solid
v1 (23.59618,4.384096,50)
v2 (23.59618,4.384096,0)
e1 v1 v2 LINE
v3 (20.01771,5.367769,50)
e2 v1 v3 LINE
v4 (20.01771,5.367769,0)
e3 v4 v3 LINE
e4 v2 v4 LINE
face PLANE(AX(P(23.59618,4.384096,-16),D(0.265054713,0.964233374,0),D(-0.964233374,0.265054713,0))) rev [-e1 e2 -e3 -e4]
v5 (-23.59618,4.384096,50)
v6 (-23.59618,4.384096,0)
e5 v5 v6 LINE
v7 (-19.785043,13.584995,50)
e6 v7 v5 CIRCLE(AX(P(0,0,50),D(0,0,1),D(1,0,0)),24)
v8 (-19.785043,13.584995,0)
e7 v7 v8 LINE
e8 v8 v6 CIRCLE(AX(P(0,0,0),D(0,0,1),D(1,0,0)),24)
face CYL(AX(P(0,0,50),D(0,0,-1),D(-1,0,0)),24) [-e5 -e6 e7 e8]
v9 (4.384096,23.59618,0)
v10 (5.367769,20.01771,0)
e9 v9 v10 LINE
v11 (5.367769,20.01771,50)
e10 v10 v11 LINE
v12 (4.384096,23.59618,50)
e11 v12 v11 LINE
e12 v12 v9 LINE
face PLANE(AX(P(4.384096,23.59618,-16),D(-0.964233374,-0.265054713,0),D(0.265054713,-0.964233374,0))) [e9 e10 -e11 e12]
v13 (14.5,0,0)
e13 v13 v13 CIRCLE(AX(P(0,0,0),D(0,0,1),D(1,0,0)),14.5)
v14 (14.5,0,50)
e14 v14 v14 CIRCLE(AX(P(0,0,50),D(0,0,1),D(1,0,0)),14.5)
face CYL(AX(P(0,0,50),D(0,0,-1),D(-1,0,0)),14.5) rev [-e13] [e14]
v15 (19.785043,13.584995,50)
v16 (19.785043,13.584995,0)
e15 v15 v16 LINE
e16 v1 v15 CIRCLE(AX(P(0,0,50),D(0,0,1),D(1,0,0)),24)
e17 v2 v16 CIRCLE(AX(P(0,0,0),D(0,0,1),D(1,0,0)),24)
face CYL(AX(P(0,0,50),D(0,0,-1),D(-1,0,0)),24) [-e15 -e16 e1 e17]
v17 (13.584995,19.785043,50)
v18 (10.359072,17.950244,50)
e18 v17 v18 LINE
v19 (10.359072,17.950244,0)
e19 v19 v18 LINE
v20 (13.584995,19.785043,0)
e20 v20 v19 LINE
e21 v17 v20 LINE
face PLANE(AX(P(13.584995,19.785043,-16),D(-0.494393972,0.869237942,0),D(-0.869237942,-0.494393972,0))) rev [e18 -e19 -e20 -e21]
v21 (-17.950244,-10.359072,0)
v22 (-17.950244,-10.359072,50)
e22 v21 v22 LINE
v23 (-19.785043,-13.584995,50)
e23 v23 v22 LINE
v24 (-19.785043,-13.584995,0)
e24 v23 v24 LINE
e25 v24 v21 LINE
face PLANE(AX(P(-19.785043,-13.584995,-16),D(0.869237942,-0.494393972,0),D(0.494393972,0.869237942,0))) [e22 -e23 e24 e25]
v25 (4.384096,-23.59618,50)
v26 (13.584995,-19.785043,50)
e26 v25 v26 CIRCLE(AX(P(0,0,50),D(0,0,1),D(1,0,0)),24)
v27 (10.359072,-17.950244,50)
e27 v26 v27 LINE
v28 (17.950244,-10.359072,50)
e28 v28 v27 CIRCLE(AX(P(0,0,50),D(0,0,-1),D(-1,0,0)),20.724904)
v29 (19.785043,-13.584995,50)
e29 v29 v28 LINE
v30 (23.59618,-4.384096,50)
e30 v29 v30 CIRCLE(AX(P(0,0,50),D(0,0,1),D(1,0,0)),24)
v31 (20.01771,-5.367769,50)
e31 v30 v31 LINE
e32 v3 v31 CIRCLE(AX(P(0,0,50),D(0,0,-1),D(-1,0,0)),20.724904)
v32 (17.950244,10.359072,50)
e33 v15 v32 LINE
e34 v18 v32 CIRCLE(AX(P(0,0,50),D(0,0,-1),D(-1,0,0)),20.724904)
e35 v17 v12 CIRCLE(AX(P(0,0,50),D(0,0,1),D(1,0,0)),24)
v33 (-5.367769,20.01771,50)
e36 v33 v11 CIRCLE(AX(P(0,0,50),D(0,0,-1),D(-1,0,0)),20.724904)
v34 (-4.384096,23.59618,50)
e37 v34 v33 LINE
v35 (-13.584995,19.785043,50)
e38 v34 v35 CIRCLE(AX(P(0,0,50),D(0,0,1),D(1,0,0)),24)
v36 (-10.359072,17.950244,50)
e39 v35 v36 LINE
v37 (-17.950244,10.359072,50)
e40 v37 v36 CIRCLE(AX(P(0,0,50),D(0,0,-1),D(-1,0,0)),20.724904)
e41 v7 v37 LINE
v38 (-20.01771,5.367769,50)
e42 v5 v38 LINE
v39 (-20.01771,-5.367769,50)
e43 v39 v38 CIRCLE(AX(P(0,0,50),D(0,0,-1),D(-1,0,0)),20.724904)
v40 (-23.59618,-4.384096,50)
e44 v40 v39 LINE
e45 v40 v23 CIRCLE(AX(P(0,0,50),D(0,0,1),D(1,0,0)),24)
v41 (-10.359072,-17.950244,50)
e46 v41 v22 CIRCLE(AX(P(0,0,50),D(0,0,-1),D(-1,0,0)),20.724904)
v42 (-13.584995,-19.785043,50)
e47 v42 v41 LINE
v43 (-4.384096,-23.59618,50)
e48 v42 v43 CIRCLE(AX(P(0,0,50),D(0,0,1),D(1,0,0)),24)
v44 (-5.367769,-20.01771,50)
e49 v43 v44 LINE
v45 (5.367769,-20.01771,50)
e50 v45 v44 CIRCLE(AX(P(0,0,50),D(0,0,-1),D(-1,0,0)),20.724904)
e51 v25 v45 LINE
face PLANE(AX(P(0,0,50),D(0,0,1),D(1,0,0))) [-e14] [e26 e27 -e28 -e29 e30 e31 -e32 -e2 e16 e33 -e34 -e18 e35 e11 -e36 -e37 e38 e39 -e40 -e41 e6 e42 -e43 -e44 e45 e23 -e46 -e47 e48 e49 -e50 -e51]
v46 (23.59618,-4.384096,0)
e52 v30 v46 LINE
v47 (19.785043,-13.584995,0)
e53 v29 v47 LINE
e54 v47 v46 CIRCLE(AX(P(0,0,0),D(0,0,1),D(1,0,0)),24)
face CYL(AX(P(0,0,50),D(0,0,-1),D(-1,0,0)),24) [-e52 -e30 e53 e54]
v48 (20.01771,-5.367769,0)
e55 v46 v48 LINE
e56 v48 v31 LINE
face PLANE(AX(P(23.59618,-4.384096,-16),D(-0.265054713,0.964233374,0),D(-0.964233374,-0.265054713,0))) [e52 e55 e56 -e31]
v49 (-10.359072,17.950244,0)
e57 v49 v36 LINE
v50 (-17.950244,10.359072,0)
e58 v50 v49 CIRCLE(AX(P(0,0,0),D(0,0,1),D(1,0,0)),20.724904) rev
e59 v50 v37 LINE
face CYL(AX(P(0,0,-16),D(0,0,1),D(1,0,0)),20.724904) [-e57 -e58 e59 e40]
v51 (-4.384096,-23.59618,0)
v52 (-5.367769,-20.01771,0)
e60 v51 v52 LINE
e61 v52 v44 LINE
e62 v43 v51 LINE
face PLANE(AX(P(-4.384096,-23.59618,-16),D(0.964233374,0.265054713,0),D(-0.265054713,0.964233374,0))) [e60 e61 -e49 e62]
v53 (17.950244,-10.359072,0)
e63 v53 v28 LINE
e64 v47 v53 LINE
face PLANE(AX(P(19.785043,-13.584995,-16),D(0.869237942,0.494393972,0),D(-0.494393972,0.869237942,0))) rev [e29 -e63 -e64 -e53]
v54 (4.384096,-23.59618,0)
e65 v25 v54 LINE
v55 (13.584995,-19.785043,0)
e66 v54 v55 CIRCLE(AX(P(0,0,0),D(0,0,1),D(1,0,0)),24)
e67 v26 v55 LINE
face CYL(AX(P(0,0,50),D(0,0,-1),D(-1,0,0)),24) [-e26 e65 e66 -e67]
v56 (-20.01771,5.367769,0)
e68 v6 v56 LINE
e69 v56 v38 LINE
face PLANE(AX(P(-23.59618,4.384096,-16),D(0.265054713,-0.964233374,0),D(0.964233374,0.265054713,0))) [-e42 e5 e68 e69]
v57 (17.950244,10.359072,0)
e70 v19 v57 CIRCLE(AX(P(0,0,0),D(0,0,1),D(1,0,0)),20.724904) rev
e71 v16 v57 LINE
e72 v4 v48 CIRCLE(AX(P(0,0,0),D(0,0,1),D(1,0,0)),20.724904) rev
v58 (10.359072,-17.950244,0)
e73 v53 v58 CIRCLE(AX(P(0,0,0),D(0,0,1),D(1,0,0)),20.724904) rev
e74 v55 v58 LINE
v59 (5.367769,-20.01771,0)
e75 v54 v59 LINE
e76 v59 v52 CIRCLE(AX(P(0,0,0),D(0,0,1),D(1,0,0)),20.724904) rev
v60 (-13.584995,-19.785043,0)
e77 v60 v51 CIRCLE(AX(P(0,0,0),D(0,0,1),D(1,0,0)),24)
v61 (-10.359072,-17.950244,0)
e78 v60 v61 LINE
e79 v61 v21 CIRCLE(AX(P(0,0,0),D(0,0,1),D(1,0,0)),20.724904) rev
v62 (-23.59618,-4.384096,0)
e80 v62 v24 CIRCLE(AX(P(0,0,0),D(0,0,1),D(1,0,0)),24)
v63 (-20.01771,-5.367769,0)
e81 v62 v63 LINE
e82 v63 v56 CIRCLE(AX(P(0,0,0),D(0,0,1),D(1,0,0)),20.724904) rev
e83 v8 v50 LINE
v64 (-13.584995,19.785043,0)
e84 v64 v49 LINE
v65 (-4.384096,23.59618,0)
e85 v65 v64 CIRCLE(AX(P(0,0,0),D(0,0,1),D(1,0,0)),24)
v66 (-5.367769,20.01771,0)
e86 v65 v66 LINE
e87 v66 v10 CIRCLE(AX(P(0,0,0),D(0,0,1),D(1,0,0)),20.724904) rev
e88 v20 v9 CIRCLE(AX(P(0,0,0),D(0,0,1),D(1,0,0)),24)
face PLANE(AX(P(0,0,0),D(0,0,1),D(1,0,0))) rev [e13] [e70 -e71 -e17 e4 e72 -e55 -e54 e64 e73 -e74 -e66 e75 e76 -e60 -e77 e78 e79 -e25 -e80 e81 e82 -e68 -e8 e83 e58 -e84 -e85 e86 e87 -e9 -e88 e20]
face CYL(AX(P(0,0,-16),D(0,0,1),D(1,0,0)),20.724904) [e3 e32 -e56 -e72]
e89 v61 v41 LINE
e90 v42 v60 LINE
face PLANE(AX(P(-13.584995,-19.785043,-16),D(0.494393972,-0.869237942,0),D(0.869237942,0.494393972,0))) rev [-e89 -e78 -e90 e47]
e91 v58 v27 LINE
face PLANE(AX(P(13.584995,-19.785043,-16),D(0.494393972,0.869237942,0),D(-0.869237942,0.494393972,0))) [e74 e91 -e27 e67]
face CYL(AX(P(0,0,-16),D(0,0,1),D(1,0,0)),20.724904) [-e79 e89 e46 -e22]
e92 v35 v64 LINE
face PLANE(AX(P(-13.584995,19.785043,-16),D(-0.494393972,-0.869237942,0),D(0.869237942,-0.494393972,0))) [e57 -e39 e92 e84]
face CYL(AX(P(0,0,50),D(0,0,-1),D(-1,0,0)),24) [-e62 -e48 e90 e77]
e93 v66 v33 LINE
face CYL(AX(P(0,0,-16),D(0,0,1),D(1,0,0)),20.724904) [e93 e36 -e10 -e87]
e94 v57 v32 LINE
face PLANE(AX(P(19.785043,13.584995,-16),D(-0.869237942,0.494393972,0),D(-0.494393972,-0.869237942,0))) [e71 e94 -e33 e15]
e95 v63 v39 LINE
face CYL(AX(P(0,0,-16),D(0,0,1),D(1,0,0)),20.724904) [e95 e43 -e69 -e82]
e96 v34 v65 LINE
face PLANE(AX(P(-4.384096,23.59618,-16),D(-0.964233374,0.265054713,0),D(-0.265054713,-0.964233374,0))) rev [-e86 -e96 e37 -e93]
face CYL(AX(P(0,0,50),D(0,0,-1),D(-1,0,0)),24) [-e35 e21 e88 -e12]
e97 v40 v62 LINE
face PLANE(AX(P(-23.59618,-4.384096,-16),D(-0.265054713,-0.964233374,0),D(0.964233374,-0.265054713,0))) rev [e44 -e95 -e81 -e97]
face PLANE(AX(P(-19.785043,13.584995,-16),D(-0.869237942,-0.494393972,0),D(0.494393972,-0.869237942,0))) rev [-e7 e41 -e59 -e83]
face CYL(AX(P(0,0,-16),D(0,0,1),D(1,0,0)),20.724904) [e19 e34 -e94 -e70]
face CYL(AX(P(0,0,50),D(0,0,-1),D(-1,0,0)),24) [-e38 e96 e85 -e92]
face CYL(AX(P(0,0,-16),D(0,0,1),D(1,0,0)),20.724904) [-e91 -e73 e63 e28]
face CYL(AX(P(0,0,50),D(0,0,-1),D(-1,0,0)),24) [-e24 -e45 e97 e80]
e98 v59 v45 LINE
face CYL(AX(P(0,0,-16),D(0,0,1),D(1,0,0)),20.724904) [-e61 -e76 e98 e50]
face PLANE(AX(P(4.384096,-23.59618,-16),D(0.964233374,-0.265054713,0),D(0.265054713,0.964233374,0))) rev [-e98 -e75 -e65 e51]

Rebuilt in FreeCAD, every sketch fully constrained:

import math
import FreeCAD as App
import Part
import Sketcher
from FreeCAD import Vector
Q = App.Units.Quantity

doc = App.newDocument("Part")
body = doc.addObject("PartDesign::Body", "Body")

# Sketch on XY plane
sketch1 = body.newObject("Sketcher::SketchObject", "Sketch")
sketch1.AttachmentSupport = (doc.getObject("XY_Plane"), [""])
sketch1.MapMode = "FlatFace"
sketch1.addGeometry([
    Part.Circle(Vector(0, 0, 0), Vector(0, 0, 1), 24),
    Part.Circle(Vector(0, 0, 0), Vector(0, 0, 1), 14),
], False)
sketch1.addConstraint([
    Sketcher.Constraint("Coincident", 0, 3, -1, 1),
    Sketcher.Constraint("Coincident", 1, 3, -1, 1),
    Sketcher.Constraint("Diameter", 0, Q("48 mm")),
    Sketcher.Constraint("Diameter", 1, Q("29 mm")),
])
pad1 = body.newObject("PartDesign::Pad", "Pad")
pad1.Profile = sketch1
pad1.Length = 50

# Sketch on XY plane
sketch2 = body.newObject("Sketcher::SketchObject", "Sketch001")
sketch2.AttachmentSupport = (doc.getObject("XY_Plane"), [""])
sketch2.MapMode = "FlatFace"
sketch2.addGeometry([
    Part.LineSegment(Vector(-4.4, 23.6, 0), Vector(-5.4, 20, 0)),  # 0
    Part.ArcOfCircle(Part.Circle(Vector(0, 0, 0), Vector(0, 0, 1), 20.7), math.radians(75), math.radians(105)),  # 1
    Part.LineSegment(Vector(5.4, 20, 0), Vector(4.4, 23.6, 0)),  # 2
    Part.ArcOfCircle(Part.Circle(Vector(0, 0, 0), Vector(0, 0, 1), 24), math.radians(79), math.radians(101)),  # 3
    Part.LineSegment(Vector(18, 10.4, 0), Vector(19.8, 13.6, 0)),  # 4
    Part.ArcOfCircle(Part.Circle(Vector(0, 0, 0), Vector(0, 0, 1), 24), math.radians(34), math.radians(56)),  # 5
    Part.LineSegment(Vector(13.6, 19.8, 0), Vector(10.4, 18, 0)),  # 6
    Part.ArcOfCircle(Part.Circle(Vector(0, 0, 0), Vector(0, 0, 1), 20.7), math.radians(30), math.radians(60)),  # 7
    Part.LineSegment(Vector(20, -5.4, 0), Vector(23.6, -4.4, 0)),  # 8
    Part.ArcOfCircle(Part.Circle(Vector(0, 0, 0), Vector(0, 0, 1), 24), math.radians(-11), math.radians(11)),  # 9
    Part.LineSegment(Vector(23.6, 4.4, 0), Vector(20, 5.4, 0)),  # 10
    Part.ArcOfCircle(Part.Circle(Vector(0, 0, 0), Vector(0, 0, 1), 20.7), math.radians(-15), math.radians(15)),  # 11
    Part.LineSegment(Vector(10.4, -18, 0), Vector(13.6, -19.8, 0)),  # 12
    Part.ArcOfCircle(Part.Circle(Vector(0, 0, 0), Vector(0, 0, 1), 24), math.radians(-56), math.radians(-34)),  # 13
    Part.LineSegment(Vector(19.8, -13.6, 0), Vector(18, -10.4, 0)),  # 14
    Part.ArcOfCircle(Part.Circle(Vector(0, 0, 0), Vector(0, 0, 1), 20.7), math.radians(-60), math.radians(-30)),  # 15
    Part.LineSegment(Vector(-5.4, -20, 0), Vector(-4.4, -23.6, 0)),  # 16
    Part.ArcOfCircle(Part.Circle(Vector(0, 0, 0), Vector(0, 0, 1), 24), math.radians(-101), math.radians(-79)),  # 17
    Part.LineSegment(Vector(4.4, -23.6, 0), Vector(5.4, -20, 0)),  # 18
    Part.ArcOfCircle(Part.Circle(Vector(0, 0, 0), Vector(0, 0, 1), 20.7), math.radians(-105), math.radians(-75)),  # 19
    Part.LineSegment(Vector(-18, -10.4, 0), Vector(-19.8, -13.6, 0)),  # 20
    Part.ArcOfCircle(Part.Circle(Vector(0, 0, 0), Vector(0, 0, 1), 24), math.radians(-146), math.radians(-124)),  # 21
    Part.LineSegment(Vector(-13.6, -19.8, 0), Vector(-10.4, -18, 0)),  # 22
    Part.ArcOfCircle(Part.Circle(Vector(0, 0, 0), Vector(0, 0, 1), 20.7), math.radians(-150), math.radians(-120)),  # 23
    Part.LineSegment(Vector(-20, 5.4, 0), Vector(-23.6, 4.4, 0)),  # 24
    Part.ArcOfCircle(Part.Circle(Vector(0, 0, 0), Vector(0, 0, 1), 24), math.radians(169), math.radians(191)),  # 25
    Part.LineSegment(Vector(-23.6, -4.4, 0), Vector(-20, -5.4, 0)),  # 26
    Part.ArcOfCircle(Part.Circle(Vector(0, 0, 0), Vector(0, 0, 1), 20.7), math.radians(165), math.radians(195)),  # 27
    Part.LineSegment(Vector(-10.4, 18, 0), Vector(-13.6, 19.8, 0)),  # 28
    Part.ArcOfCircle(Part.Circle(Vector(0, 0, 0), Vector(0, 0, 1), 24), math.radians(124), math.radians(146)),  # 29
    Part.LineSegment(Vector(-19.8, 13.6, 0), Vector(-18, 10.4, 0)),  # 30
    Part.ArcOfCircle(Part.Circle(Vector(0, 0, 0), Vector(0, 0, 1), 20.7), math.radians(120), math.radians(150)),  # 31
], False)
sketch2.addConstraint([
    Sketcher.Constraint("Coincident", 0, 2, 1, 2),
    Sketcher.Constraint("Coincident", 1, 1, 2, 1),
    Sketcher.Constraint("Coincident", 2, 2, 3, 1),
    Sketcher.Constraint("Coincident", 3, 2, 0, 1),
    Sketcher.Constraint("Coincident", 4, 2, 5, 1),
    Sketcher.Constraint("Coincident", 5, 2, 6, 1),
    Sketcher.Constraint("Coincident", 6, 2, 7, 2),
    Sketcher.Constraint("Coincident", 7, 1, 4, 1),
    Sketcher.Constraint("Coincident", 8, 2, 9, 1),
    Sketcher.Constraint("Coincident", 9, 2, 10, 1),
    Sketcher.Constraint("Coincident", 10, 2, 11, 2),
    Sketcher.Constraint("Coincident", 11, 1, 8, 1),
    Sketcher.Constraint("Coincident", 12, 2, 13, 1),
    Sketcher.Constraint("Coincident", 13, 2, 14, 1),
    Sketcher.Constraint("Coincident", 14, 2, 15, 2),
    Sketcher.Constraint("Coincident", 15, 1, 12, 1),
    Sketcher.Constraint("Coincident", 16, 2, 17, 1),
    Sketcher.Constraint("Coincident", 17, 2, 18, 1),
    Sketcher.Constraint("Coincident", 18, 2, 19, 2),
    Sketcher.Constraint("Coincident", 19, 1, 16, 1),
    Sketcher.Constraint("Coincident", 20, 2, 21, 1),
    Sketcher.Constraint("Coincident", 21, 2, 22, 1),
    Sketcher.Constraint("Coincident", 22, 2, 23, 2),
    Sketcher.Constraint("Coincident", 23, 1, 20, 1),
    Sketcher.Constraint("Coincident", 24, 2, 25, 1),
    Sketcher.Constraint("Coincident", 25, 2, 26, 1),
    Sketcher.Constraint("Coincident", 26, 2, 27, 2),
    Sketcher.Constraint("Coincident", 27, 1, 24, 1),
    Sketcher.Constraint("Coincident", 28, 2, 29, 1),
    Sketcher.Constraint("Coincident", 29, 2, 30, 1),
    Sketcher.Constraint("Coincident", 30, 2, 31, 2),
    Sketcher.Constraint("Coincident", 31, 1, 28, 1),
    Sketcher.Constraint("Coincident", 1, 3, -1, 1),
    Sketcher.Constraint("Coincident", 3, 3, -1, 1),
    Sketcher.Constraint("Coincident", 5, 3, -1, 1),
    Sketcher.Constraint("Coincident", 7, 3, -1, 1),
    Sketcher.Constraint("Coincident", 9, 3, -1, 1),
    Sketcher.Constraint("Coincident", 11, 3, -1, 1),
    Sketcher.Constraint("Coincident", 13, 3, -1, 1),
    Sketcher.Constraint("Coincident", 15, 3, -1, 1),
    Sketcher.Constraint("Coincident", 17, 3, -1, 1),
    Sketcher.Constraint("Coincident", 19, 3, -1, 1),
    Sketcher.Constraint("Coincident", 21, 3, -1, 1),
    Sketcher.Constraint("Coincident", 23, 3, -1, 1),
    Sketcher.Constraint("Coincident", 25, 3, -1, 1),
    Sketcher.Constraint("Coincident", 27, 3, -1, 1),
    Sketcher.Constraint("Coincident", 29, 3, -1, 1),
    Sketcher.Constraint("Coincident", 31, 3, -1, 1),
    Sketcher.Constraint("Equal", 3, 5),
    Sketcher.Constraint("Equal", 1, 7),
    Sketcher.Constraint("Equal", 5, 9),
    Sketcher.Constraint("Equal", 7, 11),
    Sketcher.Constraint("Equal", 9, 13),
    Sketcher.Constraint("Equal", 11, 15),
    Sketcher.Constraint("Equal", 13, 17),
    Sketcher.Constraint("Equal", 15, 19),
    Sketcher.Constraint("Equal", 17, 21),
    Sketcher.Constraint("Equal", 19, 23),
    Sketcher.Constraint("Equal", 21, 25),
    Sketcher.Constraint("Equal", 23, 27),
    Sketcher.Constraint("Equal", 25, 29),
    Sketcher.Constraint("Equal", 27, 31),
    Sketcher.Constraint("Perpendicular", 2, 8),
    Sketcher.Constraint("Perpendicular", 0, 10),
    Sketcher.Constraint("Perpendicular", 4, 12),
    Sketcher.Constraint("Perpendicular", 6, 14),
    Sketcher.Constraint("Perpendicular", 8, 16),
    Sketcher.Constraint("Perpendicular", 10, 18),
    Sketcher.Constraint("Perpendicular", 12, 20),
    Sketcher.Constraint("Perpendicular", 14, 22),
    Sketcher.Constraint("Perpendicular", 16, 24),
    Sketcher.Constraint("Perpendicular", 18, 26),
    Sketcher.Constraint("Perpendicular", 20, 28),
    Sketcher.Constraint("Perpendicular", 22, 30),
    Sketcher.Constraint("Horizontal", 0, 2, 1, 1),
    Sketcher.Constraint("Horizontal", 2, 2, 3, 2),
    Sketcher.Constraint("Horizontal", 16, 2, 17, 2),
    Sketcher.Constraint("Horizontal", 13, 2, 20, 2),
    Sketcher.Constraint("Horizontal", 12, 2, 21, 2),
    Sketcher.Constraint("Horizontal", 15, 1, 22, 2),
    Sketcher.Constraint("Horizontal", 9, 2, 24, 2),
    Sketcher.Constraint("Horizontal", 8, 2, 25, 2),
    Sketcher.Constraint("Horizontal", 5, 2, 28, 2),
    Sketcher.Constraint("Horizontal", 4, 2, 29, 2),
    Sketcher.Constraint("Vertical", 8, 2, 9, 2),
    Sketcher.Constraint("Vertical", 5, 2, 12, 2),
    Sketcher.Constraint("Vertical", 4, 2, 13, 2),
    Sketcher.Constraint("Vertical", 3, 2, 16, 2),
    Sketcher.Constraint("Equal", 2, 4),
    Sketcher.Constraint("Equal", 4, 6),
    Sketcher.Constraint("Equal", 6, 8),
    Sketcher.Constraint("Radius", 3, Q("24 mm")),
    Sketcher.Constraint("Radius", 1, Q("20.724904 mm")),
    Sketcher.Constraint("DistanceX", 2, 2, 5, 2, Q("9.200898 mm")),
    Sketcher.Constraint("DistanceY", 6, 2, 5, 2, Q("1.834799 mm")),
    Sketcher.Constraint("DistanceX", 0, 2, -1, 1, Q("5.367769 mm")),
])
pocket1 = body.newObject("PartDesign::Pocket", "Pocket")
pocket1.Profile = sketch2
pocket1.Type = "ThroughAll"
pocket1.Midplane = True

doc.recompute()
